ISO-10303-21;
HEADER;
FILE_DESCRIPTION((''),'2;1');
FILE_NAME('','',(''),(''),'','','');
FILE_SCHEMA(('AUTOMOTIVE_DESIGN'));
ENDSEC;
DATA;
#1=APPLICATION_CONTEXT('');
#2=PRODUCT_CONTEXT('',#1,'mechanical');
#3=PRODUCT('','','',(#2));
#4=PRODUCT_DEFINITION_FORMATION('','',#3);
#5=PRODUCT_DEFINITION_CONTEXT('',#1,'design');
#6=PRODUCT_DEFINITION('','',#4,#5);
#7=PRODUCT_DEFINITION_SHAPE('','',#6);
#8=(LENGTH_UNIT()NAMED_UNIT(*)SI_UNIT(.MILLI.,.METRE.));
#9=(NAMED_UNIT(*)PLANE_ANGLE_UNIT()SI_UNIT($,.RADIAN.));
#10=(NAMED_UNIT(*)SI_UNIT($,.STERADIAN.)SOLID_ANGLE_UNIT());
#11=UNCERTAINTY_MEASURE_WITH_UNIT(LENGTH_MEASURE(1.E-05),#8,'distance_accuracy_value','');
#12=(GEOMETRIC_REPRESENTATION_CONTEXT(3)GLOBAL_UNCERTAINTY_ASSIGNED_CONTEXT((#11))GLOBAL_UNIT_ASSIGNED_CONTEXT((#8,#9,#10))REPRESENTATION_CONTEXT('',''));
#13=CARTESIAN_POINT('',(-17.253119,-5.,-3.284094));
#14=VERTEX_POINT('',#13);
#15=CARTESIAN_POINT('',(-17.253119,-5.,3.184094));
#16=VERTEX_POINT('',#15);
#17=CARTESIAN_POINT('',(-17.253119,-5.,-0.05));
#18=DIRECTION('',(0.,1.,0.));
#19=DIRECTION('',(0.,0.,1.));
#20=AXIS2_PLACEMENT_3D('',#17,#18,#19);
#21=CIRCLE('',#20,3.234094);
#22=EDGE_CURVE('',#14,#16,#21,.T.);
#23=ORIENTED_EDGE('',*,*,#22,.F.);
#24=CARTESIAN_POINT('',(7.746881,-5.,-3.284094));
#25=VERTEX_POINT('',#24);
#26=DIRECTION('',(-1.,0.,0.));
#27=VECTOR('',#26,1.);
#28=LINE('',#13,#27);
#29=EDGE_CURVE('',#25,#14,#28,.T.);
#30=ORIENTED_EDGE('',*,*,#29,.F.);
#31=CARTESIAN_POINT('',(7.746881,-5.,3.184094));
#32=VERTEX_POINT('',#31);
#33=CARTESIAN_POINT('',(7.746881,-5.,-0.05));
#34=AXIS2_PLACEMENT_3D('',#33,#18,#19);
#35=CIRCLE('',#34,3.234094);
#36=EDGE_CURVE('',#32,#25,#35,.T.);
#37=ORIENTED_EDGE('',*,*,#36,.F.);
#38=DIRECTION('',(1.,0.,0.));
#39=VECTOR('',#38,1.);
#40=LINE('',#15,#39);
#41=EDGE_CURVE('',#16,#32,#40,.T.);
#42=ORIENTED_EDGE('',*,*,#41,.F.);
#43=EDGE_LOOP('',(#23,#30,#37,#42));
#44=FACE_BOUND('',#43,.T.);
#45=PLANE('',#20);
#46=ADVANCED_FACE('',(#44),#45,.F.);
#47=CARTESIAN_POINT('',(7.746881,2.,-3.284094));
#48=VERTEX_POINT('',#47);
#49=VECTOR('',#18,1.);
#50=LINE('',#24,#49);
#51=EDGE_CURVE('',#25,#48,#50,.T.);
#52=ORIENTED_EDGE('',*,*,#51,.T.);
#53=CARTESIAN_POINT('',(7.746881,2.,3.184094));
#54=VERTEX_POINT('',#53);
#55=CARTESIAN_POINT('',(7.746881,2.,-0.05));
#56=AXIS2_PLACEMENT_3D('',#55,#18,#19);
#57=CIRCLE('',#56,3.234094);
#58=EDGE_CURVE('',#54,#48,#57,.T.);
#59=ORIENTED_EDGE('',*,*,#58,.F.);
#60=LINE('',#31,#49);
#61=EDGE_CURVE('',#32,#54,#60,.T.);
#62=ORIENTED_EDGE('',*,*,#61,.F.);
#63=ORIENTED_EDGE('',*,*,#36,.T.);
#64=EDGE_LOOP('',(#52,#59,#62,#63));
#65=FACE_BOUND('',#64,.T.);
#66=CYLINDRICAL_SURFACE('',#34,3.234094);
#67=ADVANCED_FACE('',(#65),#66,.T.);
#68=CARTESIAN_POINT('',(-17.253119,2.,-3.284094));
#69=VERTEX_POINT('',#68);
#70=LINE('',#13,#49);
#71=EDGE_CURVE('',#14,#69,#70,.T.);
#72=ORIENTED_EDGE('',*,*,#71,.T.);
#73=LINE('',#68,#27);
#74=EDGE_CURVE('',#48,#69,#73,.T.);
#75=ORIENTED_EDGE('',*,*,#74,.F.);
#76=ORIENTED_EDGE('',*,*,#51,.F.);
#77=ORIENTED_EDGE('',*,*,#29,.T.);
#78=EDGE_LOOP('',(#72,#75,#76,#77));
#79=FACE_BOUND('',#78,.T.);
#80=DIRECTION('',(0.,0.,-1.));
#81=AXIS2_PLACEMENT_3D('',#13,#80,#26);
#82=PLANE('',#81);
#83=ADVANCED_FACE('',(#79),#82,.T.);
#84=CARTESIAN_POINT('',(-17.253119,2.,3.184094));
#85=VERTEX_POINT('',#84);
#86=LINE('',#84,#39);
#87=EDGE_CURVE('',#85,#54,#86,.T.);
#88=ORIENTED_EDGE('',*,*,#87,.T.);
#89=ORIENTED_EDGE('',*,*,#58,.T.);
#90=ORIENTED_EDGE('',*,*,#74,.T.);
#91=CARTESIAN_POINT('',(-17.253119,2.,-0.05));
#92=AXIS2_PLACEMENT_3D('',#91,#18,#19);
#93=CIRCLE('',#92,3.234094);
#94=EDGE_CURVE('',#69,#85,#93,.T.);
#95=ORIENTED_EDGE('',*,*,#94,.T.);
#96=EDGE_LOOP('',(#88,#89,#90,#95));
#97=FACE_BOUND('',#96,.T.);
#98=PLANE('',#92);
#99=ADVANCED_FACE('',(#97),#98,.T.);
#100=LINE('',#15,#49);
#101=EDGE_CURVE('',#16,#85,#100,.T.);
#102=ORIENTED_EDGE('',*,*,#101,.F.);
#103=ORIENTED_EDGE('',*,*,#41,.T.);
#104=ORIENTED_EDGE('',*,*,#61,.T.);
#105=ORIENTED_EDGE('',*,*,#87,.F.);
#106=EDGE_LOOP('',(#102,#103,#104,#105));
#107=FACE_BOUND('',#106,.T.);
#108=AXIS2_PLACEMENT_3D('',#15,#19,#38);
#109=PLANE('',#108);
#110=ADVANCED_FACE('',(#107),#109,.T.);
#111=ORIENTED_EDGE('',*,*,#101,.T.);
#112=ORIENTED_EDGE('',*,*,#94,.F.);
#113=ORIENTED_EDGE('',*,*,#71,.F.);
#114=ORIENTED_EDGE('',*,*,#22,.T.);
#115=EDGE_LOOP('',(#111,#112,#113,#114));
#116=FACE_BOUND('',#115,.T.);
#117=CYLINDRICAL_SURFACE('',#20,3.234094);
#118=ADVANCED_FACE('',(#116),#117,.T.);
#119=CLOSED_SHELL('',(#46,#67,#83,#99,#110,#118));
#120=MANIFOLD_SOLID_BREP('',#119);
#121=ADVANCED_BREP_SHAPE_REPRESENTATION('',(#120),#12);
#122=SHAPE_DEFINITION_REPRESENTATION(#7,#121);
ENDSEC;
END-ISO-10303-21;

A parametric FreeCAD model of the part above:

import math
import FreeCAD as App
import Part
import Sketcher
Q = App.Units.Quantity

doc = App.newDocument("Part")
body = doc.addObject("PartDesign::Body", "Body")

# Sketch on XZ plane
sketch1 = body.newObject("Sketcher::SketchObject", "Sketch")
sketch1.AttachmentSupport = (doc.getObject("XZ_Plane"), [""])
sketch1.MapMode = "FlatFace"
sketch1.addGeometry([
    Part.LineSegment(App.Vector(7.746881, -3.284094, 0), App.Vector(-17.253119, -3.284094, 0)),
    Part.ArcOfCircle(Part.Circle(App.Vector(-17.253119, -0.05, 0), App.Vector(0, 0, 1), 3.234094), math.radians(90), math.radians(270)),
    Part.LineSegment(App.Vector(-17.253119, 3.184094, 0), App.Vector(7.746881, 3.184094, 0)),
    Part.ArcOfCircle(Part.Circle(App.Vector(7.746881, -0.05, 0), App.Vector(0, 0, 1), 3.234094), math.radians(-90), math.radians(90)),
], False)
sketch1.addConstraint([
    Sketcher.Constraint("Tangent", 0, 2, 1, 2),
    Sketcher.Constraint("Tangent", 1, 1, 2, 1),
    Sketcher.Constraint("Tangent", 2, 2, 3, 2),
    Sketcher.Constraint("Tangent", 3, 1, 0, 1),
    Sketcher.Constraint("Horizontal", 0),
    Sketcher.Constraint("Horizontal", 2),
    Sketcher.Constraint("DistanceX", 0, 2, 0, 1, Q("25 mm")),
    Sketcher.Constraint("DistanceY", 1, 3, -1, 1, Q("0.05 mm")),
    Sketcher.Constraint("Radius", 1, Q("3.234094 mm")),
    Sketcher.Constraint("DistanceX", 1, 3, -1, 1, Q("17.253119 mm")),
])
pad1 = body.newObject("PartDesign::Pad", "Pad")
pad1.Profile = sketch1
pad1.Type = "TwoLengths"
pad1.Length = 2
pad1.Length2 = 5
pad1.Reversed = True

doc.recompute()
